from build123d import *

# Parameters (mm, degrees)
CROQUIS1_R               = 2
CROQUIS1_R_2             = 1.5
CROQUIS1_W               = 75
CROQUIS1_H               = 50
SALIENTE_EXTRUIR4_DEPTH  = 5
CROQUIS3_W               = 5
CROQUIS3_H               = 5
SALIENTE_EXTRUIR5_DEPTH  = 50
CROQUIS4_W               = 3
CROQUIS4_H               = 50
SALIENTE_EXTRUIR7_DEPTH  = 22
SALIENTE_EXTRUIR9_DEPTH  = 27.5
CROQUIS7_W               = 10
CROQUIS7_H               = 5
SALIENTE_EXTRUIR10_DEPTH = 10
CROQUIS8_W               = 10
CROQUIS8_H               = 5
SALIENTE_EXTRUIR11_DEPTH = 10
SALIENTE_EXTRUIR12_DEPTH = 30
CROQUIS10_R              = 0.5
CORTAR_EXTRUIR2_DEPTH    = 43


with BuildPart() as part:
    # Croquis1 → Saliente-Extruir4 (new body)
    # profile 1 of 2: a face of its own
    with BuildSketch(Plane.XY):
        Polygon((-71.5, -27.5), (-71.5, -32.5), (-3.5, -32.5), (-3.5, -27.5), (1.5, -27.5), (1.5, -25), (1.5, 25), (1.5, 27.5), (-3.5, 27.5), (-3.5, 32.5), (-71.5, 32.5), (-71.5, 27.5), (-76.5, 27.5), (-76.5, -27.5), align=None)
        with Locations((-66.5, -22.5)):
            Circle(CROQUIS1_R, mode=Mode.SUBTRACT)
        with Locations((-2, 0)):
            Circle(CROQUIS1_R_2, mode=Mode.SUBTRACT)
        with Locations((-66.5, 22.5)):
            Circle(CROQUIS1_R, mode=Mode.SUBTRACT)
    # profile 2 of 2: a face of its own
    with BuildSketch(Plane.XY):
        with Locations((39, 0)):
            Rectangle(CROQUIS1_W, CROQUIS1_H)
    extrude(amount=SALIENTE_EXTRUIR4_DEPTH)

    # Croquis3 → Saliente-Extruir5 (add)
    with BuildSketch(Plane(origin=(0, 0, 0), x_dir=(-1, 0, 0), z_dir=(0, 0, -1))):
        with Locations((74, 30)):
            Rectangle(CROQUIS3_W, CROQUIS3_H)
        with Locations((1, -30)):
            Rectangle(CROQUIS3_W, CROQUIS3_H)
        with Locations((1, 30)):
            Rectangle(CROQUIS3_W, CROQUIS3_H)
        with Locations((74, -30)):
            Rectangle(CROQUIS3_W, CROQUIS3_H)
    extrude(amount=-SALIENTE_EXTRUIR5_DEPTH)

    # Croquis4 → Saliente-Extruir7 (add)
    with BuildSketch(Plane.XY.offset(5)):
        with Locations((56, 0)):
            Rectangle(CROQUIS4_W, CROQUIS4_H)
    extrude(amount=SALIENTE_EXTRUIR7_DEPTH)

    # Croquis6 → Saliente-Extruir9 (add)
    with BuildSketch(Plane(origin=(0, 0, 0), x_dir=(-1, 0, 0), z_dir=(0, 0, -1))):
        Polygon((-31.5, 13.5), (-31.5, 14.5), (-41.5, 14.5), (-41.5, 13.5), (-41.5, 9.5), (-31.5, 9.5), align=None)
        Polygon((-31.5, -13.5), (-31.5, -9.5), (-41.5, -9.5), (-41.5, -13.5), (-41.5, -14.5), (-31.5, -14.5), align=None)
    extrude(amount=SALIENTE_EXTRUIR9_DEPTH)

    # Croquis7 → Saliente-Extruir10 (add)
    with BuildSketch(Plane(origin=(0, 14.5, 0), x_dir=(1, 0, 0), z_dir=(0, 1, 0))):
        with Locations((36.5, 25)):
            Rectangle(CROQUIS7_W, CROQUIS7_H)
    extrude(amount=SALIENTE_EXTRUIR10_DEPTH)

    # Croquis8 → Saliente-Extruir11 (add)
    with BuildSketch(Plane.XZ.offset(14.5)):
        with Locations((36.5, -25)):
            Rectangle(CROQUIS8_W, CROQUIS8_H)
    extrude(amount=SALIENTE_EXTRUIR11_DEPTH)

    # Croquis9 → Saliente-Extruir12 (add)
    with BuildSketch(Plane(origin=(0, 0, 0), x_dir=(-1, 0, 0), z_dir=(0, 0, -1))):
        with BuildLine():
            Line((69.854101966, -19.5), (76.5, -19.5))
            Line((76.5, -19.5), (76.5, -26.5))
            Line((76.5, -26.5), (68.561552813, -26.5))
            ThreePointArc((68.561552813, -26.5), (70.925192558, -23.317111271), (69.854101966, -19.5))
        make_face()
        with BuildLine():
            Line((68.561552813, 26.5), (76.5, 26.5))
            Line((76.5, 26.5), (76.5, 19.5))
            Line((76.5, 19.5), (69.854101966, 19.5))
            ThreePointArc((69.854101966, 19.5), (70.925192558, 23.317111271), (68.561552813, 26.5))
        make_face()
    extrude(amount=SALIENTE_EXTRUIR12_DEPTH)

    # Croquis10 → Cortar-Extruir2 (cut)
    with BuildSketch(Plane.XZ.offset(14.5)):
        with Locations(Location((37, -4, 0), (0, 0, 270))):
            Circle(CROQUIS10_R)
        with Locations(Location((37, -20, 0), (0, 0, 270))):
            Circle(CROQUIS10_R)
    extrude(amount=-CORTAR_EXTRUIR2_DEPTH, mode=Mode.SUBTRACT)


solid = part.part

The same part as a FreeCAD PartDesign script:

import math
import FreeCAD as App
import Part
import Sketcher

V = App.Vector
Q = App.Units.Quantity


def add_polygon(sketch, points):
    """Adds a closed chain of lines whose ends are joined by coincident constraints."""
    first, n = sketch.GeometryCount, len(points)
    for a, b in zip(points, points[1:] + points[:1]):
        sketch.addGeometry(Part.LineSegment(App.Vector(*a, 0), App.Vector(*b, 0)), False)
    for i in range(n):
        sketch.addConstraint(Sketcher.Constraint("Coincident", first + i, 2, first + (i + 1) % n, 1))

doc = App.newDocument("Part")
params = doc.addObject("Spreadsheet::Sheet", "Params")
for row, (alias, value) in enumerate([
    ("sketch1_diameter", "4 mm"),
    ("sketch1_diameter2", "3 mm"),
    ("sketch1_width", "68 mm"),
    ("sketch1_width2", "5 mm"),
    ("sketch1_width3", "75 mm"),
    ("pad1_length", "5 mm"),
    ("sketch2_width", "5 mm"),
    ("pad2_length", "50 mm"),
    ("sketch3_width", "3 mm"),
    ("sketch3_height", "50 mm"),
    ("pad3_length", "22 mm"),
    ("sketch4_width", "10 mm"),
    ("sketch4_height", "5 mm"),
    ("pad4_length", "27.5 mm"),
    ("sketch5_width", "10 mm"),
    ("sketch5_height", "5 mm"),
    ("pad5_length", "10 mm"),
    ("sketch6_width", "10 mm"),
    ("sketch6_height", "5 mm"),
    ("pad6_length", "10 mm"),
    ("sketch7_radius", "4.5 mm"),
    ("sketch7_height", "7 mm"),
    ("pad7_length", "30 mm"),
    ("sketch8_diameter", "1 mm"),
    ("pocket1_length", "43 mm"),
], start=1):
    params.set(f"A{row}", alias)
    params.set(f"B{row}", "=" + value)
    params.setAlias(f"B{row}", alias)

body = doc.addObject("PartDesign::Body", "Body")

# Sketch on XY plane
sketch1 = body.newObject("Sketcher::SketchObject", "Sketch")
sketch1.AttachmentSupport = (doc.getObject("XY_Plane"), [""])
sketch1.MapMode = "FlatFace"
add_polygon(sketch1, [(-71.5, -27.5), (-71.5, -32.5), (-3.5, -32.5), (-3.5, -27.5), (1.5, -27.5), (1.5, -25), (76.5, -25), (76.5, 25), (1.5, 25), (1.5, 27.5), (-3.5, 27.5), (-3.5, 32.5), (-71.5, 32.5), (-71.5, 27.5), (-76.5, 27.5), (-76.5, -27.5)])  # lines 0-15
sketch1.addGeometry(Part.Circle(V(-66.5, -22.5, 0), V(0, 0, 1), 2), False)  # 16
sketch1.addGeometry(Part.Circle(V(-2, 0, 0), V(0, 0, 1), 1.5), False)  # 17
sketch1.addGeometry(Part.Circle(V(-66.5, 22.5, 0), V(0, 0, 1), 2), False)  # 18
sketch1.addConstraint(Sketcher.Constraint("Vertical", 0))
sketch1.addConstraint(Sketcher.Constraint("Horizontal", 1))
sketch1.addConstraint(Sketcher.Constraint("Vertical", 2))
sketch1.addConstraint(Sketcher.Constraint("Horizontal", 3))
sketch1.addConstraint(Sketcher.Constraint("Vertical", 4))
sketch1.addConstraint(Sketcher.Constraint("Horizontal", 5))
sketch1.addConstraint(Sketcher.Constraint("Vertical", 6))
sketch1.addConstraint(Sketcher.Constraint("Horizontal", 7))
sketch1.addConstraint(Sketcher.Constraint("Vertical", 8))
sketch1.addConstraint(Sketcher.Constraint("Horizontal", 9))
sketch1.addConstraint(Sketcher.Constraint("Vertical", 10))
sketch1.addConstraint(Sketcher.Constraint("Horizontal", 11))
sketch1.addConstraint(Sketcher.Constraint("Vertical", 12))
sketch1.addConstraint(Sketcher.Constraint("Horizontal", 13))
sketch1.addConstraint(Sketcher.Constraint("Vertical", 14))
sketch1.addConstraint(Sketcher.Constraint("Horizontal", 15))
sketch1.addConstraint(Sketcher.Constraint("Equal", 16, 18))
sketch1.addConstraint(Sketcher.Constraint("Symmetric", 16, 3, 18, 3, -1))
sketch1.addConstraint(Sketcher.Constraint("Symmetric", 4, 2, 7, 2, -1))
sketch1.addConstraint(Sketcher.Constraint("Symmetric", 2, 2, 9, 2, -1))
sketch1.addConstraint(Sketcher.Constraint("Symmetric", 0, 2, 11, 2, -1))
sketch1.addConstraint(Sketcher.Constraint("PointOnObject", 17, 3, -1))
sketch1.addConstraint(Sketcher.Constraint("Horizontal", 9, 2, 12, 2))
sketch1.addConstraint(Sketcher.Constraint("Horizontal", 3, 2, 14, 2))
sketch1.addConstraint(Sketcher.Constraint("Equal", 9, 13))
sketch1.addConstraint(Sketcher.Constraint("Equal", 15, 0))
sketch1.addConstraint(Sketcher.Constraint("Diameter", 16, Q("4 mm")))
sketch1.addConstraint(Sketcher.Constraint("Diameter", 17, Q("3 mm")))
sketch1.addConstraint(Sketcher.Constraint("DistanceX", 1, 1, 1, 2, Q("68 mm")))
sketch1.addConstraint(Sketcher.Constraint("DistanceX", 3, 1, 3, 2, Q("5 mm")))
sketch1.addConstraint(Sketcher.Constraint("DistanceX", 5, 1, 5, 2, Q("75 mm")))
sketch1.addConstraint(Sketcher.Constraint("DistanceY", 6, 1, 6, 2, Q("50 mm")))
sketch1.addConstraint(Sketcher.Constraint("DistanceY", 14, 2, 14, 1, Q("55 mm")))
sketch1.addConstraint(Sketcher.Constraint("DistanceX", 17, 3, -1, 1, Q("2 mm")))
sketch1.addConstraint(Sketcher.Constraint("DistanceY", 16, 3, 18, 3, Q("45 mm")))
sketch1.addConstraint(Sketcher.Constraint("DistanceX", 0, 2, 16, 3, Q("5 mm")))
sketch1.addConstraint(Sketcher.Constraint("DistanceX", 16, 3, -1, 1, Q("66.5 mm")))
sketch1.setExpression("Constraints[42]", "Params.sketch1_diameter")
sketch1.setExpression("Constraints[43]", "Params.sketch1_diameter2")
sketch1.setExpression("Constraints[44]", "Params.sketch1_width")
sketch1.setExpression("Constraints[45]", "Params.sketch1_width2")
sketch1.setExpression("Constraints[46]", "Params.sketch1_width3")
pad1 = body.newObject("PartDesign::Pad", "Pad")
pad1.Profile = sketch1
pad1.setExpression("Length", "Params.pad1_length")

# Sketch on XY plane
sketch2 = body.newObject("Sketcher::SketchObject", "Sketch001")
sketch2.AttachmentSupport = (doc.getObject("XY_Plane"), [""])
sketch2.MapMode = "FlatFace"
add_polygon(sketch2, [(-72, 32), (-72, 28), (-76, 28), (-76, 32)])  # lines 0-3
add_polygon(sketch2, [(2, -28), (2, -32), (-4, -32), (-4, -28)])  # lines 4-7
add_polygon(sketch2, [(2, 32), (2, 28), (-4, 28), (-4, 32)])  # lines 8-11
add_polygon(sketch2, [(-72, -28), (-72, -32), (-76, -32), (-76, -28)])  # lines 12-15
sketch2.addConstraint(Sketcher.Constraint("Vertical", 0))
sketch2.addConstraint(Sketcher.Constraint("Horizontal", 1))
sketch2.addConstraint(Sketcher.Constraint("Vertical", 2))
sketch2.addConstraint(Sketcher.Constraint("Horizontal", 3))
sketch2.addConstraint(Sketcher.Constraint("Vertical", 4))
sketch2.addConstraint(Sketcher.Constraint("Horizontal", 5))
sketch2.addConstraint(Sketcher.Constraint("Vertical", 6))
sketch2.addConstraint(Sketcher.Constraint("Horizontal", 7))
sketch2.addConstraint(Sketcher.Constraint("Vertical", 8))
sketch2.addConstraint(Sketcher.Constraint("Horizontal", 9))
sketch2.addConstraint(Sketcher.Constraint("Vertical", 10))
sketch2.addConstraint(Sketcher.Constraint("Horizontal", 11))
sketch2.addConstraint(Sketcher.Constraint("Vertical", 12))
sketch2.addConstraint(Sketcher.Constraint("Horizontal", 13))
sketch2.addConstraint(Sketcher.Constraint("Vertical", 14))
sketch2.addConstraint(Sketcher.Constraint("Horizontal", 15))
sketch2.addConstraint(Sketcher.Constraint("Symmetric", 7, 2, 8, 2, -1))
sketch2.addConstraint(Sketcher.Constraint("Symmetric", 5, 2, 10, 2, -1))
sketch2.addConstraint(Sketcher.Constraint("Symmetric", 3, 2, 12, 2, -1))
sketch2.addConstraint(Sketcher.Constraint("Symmetric", 1, 2, 14, 2, -1))
sketch2.addConstraint(Sketcher.Constraint("Horizontal", 1, 2, 8, 2))
sketch2.addConstraint(Sketcher.Constraint("Horizontal", 3, 2, 10, 2))
sketch2.addConstraint(Sketcher.Constraint("Equal", 3, 5))
sketch2.addConstraint(Sketcher.Constraint("Equal", 15, 0))
sketch2.addConstraint(Sketcher.Constraint("DistanceX", 1, 2, 1, 1, Q("5 mm")))
sketch2.addConstraint(Sketcher.Constraint("DistanceX", 0, 2, 4, 2, Q("73 mm")))
sketch2.addConstraint(Sketcher.Constraint("DistanceY", 4, 2, 0, 2, Q("60 mm")))
sketch2.addConstraint(Sketcher.Constraint("DistanceX", 0, 2, -1, 1, Q("71.5 mm")))
sketch2.setExpression("Constraints[40]", "Params.sketch2_width")
pad2 = body.newObject("PartDesign::Pad", "Pad001")
pad2.Profile = sketch2
pad2.setExpression("Length", "Params.pad2_length")

# Sketch on XY plane
sketch3 = body.newObject("Sketcher::SketchObject", "Sketch002")
sketch3.AttachmentSupport = (doc.getObject("XY_Plane"), [""])
sketch3.MapMode = "FlatFace"
sketch3.AttachmentOffset = App.Placement(V(0, 0, 5), App.Rotation())
add_polygon(sketch3, [(54.5, 25), (54.5, -25), (57.5, -25), (57.5, 25)])  # lines 0-3
sketch3.addConstraint(Sketcher.Constraint("Vertical", 0))
sketch3.addConstraint(Sketcher.Constraint("Horizontal", 1))
sketch3.addConstraint(Sketcher.Constraint("Vertical", 2))
sketch3.addConstraint(Sketcher.Constraint("Horizontal", 3))
sketch3.addConstraint(Sketcher.Constraint("DistanceX", 1, 1, 1, 2, Q("3 mm")))
sketch3.addConstraint(Sketcher.Constraint("DistanceY", 0, 2, 0, 1, Q("50 mm")))
sketch3.addConstraint(Sketcher.Constraint("DistanceY", 0, 2, -1, 1, Q("25 mm")))
sketch3.addConstraint(Sketcher.Constraint("DistanceX", -1, 1, 0, 2, Q("54.5 mm")))
sketch3.setExpression("Constraints[8]", "Params.sketch3_width")
sketch3.setExpression("Constraints[9]", "Params.sketch3_height")
pad3 = body.newObject("PartDesign::Pad", "Pad002")
pad3.Profile = sketch3
pad3.setExpression("Length", "Params.pad3_length")

# Sketch on XY plane
sketch4 = body.newObject("Sketcher::SketchObject", "Sketch003")
sketch4.AttachmentSupport = (doc.getObject("XY_Plane"), [""])
sketch4.MapMode = "FlatFace"
add_polygon(sketch4, [(32, 14), (42, 14), (42, 10), (32, 10)])  # lines 0-3
add_polygon(sketch4, [(32, -10), (42, -10), (42, -14), (32, -14)])  # lines 4-7
sketch4.addConstraint(Sketcher.Constraint("Horizontal", 0))
sketch4.addConstraint(Sketcher.Constraint("Vertical", 1))
sketch4.addConstraint(Sketcher.Constraint("Horizontal", 2))
sketch4.addConstraint(Sketcher.Constraint("Vertical", 3))
sketch4.addConstraint(Sketcher.Constraint("Horizontal", 4))
sketch4.addConstraint(Sketcher.Constraint("Vertical", 5))
sketch4.addConstraint(Sketcher.Constraint("Horizontal", 6))
sketch4.addConstraint(Sketcher.Constraint("Vertical", 7))
sketch4.addConstraint(Sketcher.Constraint("Symmetric", 1, 2, 4, 2, -1))
sketch4.addConstraint(Sketcher.Constraint("Symmetric", 3, 2, 6, 2, -1))
sketch4.addConstraint(Sketcher.Constraint("DistanceX", 0, 1, 0, 2, Q("10 mm")))
sketch4.addConstraint(Sketcher.Constraint("DistanceY", 1, 2, 1, 1, Q("5 mm")))
sketch4.addConstraint(Sketcher.Constraint("DistanceY", 4, 2, 1, 2, Q("19 mm")))
sketch4.addConstraint(Sketcher.Constraint("DistanceX", -1, 1, 0, 2, Q("41.5 mm")))
sketch4.setExpression("Constraints[18]", "Params.sketch4_width")
sketch4.setExpression("Constraints[19]", "Params.sketch4_height")
pad4 = body.newObject("PartDesign::Pad", "Pad003")
pad4.Profile = sketch4
pad4.setExpression("Length", "Params.pad4_length")
pad4.Reversed = True

# Sketch on XZ plane
sketch5 = body.newObject("Sketcher::SketchObject", "Sketch004")
sketch5.AttachmentSupport = (doc.getObject("XZ_Plane"), [""])
sketch5.MapMode = "FlatFace"
sketch5.AttachmentOffset = App.Placement(V(0, 0, -14.5), App.Rotation())
add_polygon(sketch5, [(32, -28), (32, -22), (42, -22), (42, -28)])  # lines 0-3
sketch5.addConstraint(Sketcher.Constraint("Vertical", 0))
sketch5.addConstraint(Sketcher.Constraint("Horizontal", 1))
sketch5.addConstraint(Sketcher.Constraint("Vertical", 2))
sketch5.addConstraint(Sketcher.Constraint("Horizontal", 3))
sketch5.addConstraint(Sketcher.Constraint("DistanceX", 1, 1, 1, 2, Q("10 mm")))
sketch5.addConstraint(Sketcher.Constraint("DistanceY", 0, 1, 0, 2, Q("5 mm")))
sketch5.addConstraint(Sketcher.Constraint("DistanceX", -1, 1, 0, 2, Q("31.5 mm")))
sketch5.addConstraint(Sketcher.Constraint("DistanceY", 0, 2, -1, 1, Q("22.5 mm")))
sketch5.setExpression("Constraints[8]", "Params.sketch5_width")
sketch5.setExpression("Constraints[9]", "Params.sketch5_height")
pad5 = body.newObject("PartDesign::Pad", "Pad004")
pad5.Profile = sketch5
pad5.setExpression("Length", "Params.pad5_length")
pad5.Reversed = True

# Sketch on XZ plane
sketch6 = body.newObject("Sketcher::SketchObject", "Sketch005")
sketch6.AttachmentSupport = (doc.getObject("XZ_Plane"), [""])
sketch6.MapMode = "FlatFace"
sketch6.AttachmentOffset = App.Placement(V(0, 0, 14.5), App.Rotation())
add_polygon(sketch6, [(32, -22), (32, -28), (42, -28), (42, -22)])  # lines 0-3
sketch6.addConstraint(Sketcher.Constraint("Vertical", 0))
sketch6.addConstraint(Sketcher.Constraint("Horizontal", 1))
sketch6.addConstraint(Sketcher.Constraint("Vertical", 2))
sketch6.addConstraint(Sketcher.Constraint("Horizontal", 3))
sketch6.addConstraint(Sketcher.Constraint("DistanceX", 1, 1, 1, 2, Q("10 mm")))
sketch6.addConstraint(Sketcher.Constraint("DistanceY", 0, 2, 0, 1, Q("5 mm")))
sketch6.addConstraint(Sketcher.Constraint("DistanceX", -1, 1, 0, 2, Q("31.5 mm")))
sketch6.addConstraint(Sketcher.Constraint("DistanceY", 0, 2, -1, 1, Q("27.5 mm")))
sketch6.setExpression("Constraints[8]", "Params.sketch6_width")
sketch6.setExpression("Constraints[9]", "Params.sketch6_height")
pad6 = body.newObject("PartDesign::Pad", "Pad005")
pad6.Profile = sketch6
pad6.setExpression("Length", "Params.pad6_length")

# Sketch on XY plane
sketch7 = body.newObject("Sketcher::SketchObject", "Sketch006")
sketch7.AttachmentSupport = (doc.getObject("XY_Plane"), [""])
sketch7.MapMode = "FlatFace"
sketch7.addGeometry(Part.LineSegment(V(-76.5, -19.5, 0), V(-69.9, -19.5, 0)), False)
sketch7.addGeometry(Part.ArcOfCircle(Part.Circle(V(-66.5, -22.5, 0), V(0, 0, 1), 4.5), math.radians(138), math.radians(243)), False)
sketch7.addGeometry(Part.LineSegment(V(-68.6, -26.5, 0), V(-76.5, -26.5, 0)), False)
sketch7.addGeometry(Part.LineSegment(V(-76.5, -26.5, 0), V(-76.5, -19.5, 0)), False)
sketch7.addGeometry(Part.LineSegment(V(-76.5, 26.5, 0), V(-68.6, 26.5, 0)), False)
sketch7.addGeometry(Part.ArcOfCircle(Part.Circle(V(-66.5, 22.5, 0), V(0, 0, 1), 4.5), math.radians(117), math.radians(222)), False)
sketch7.addGeometry(Part.LineSegment(V(-69.9, 19.5, 0), V(-76.5, 19.5, 0)), False)
sketch7.addGeometry(Part.LineSegment(V(-76.5, 19.5, 0), V(-76.5, 26.5, 0)), False)
sketch7.addConstraint(Sketcher.Constraint("Coincident", 0, 2, 1, 1))
sketch7.addConstraint(Sketcher.Constraint("Coincident", 1, 2, 2, 1))
sketch7.addConstraint(Sketcher.Constraint("Coincident", 2, 2, 3, 1))
sketch7.addConstraint(Sketcher.Constraint("Coincident", 3, 2, 0, 1))
sketch7.addConstraint(Sketcher.Constraint("Coincident", 4, 2, 5, 1))
sketch7.addConstraint(Sketcher.Constraint("Coincident", 5, 2, 6, 1))
sketch7.addConstraint(Sketcher.Constraint("Coincident", 6, 2, 7, 1))
sketch7.addConstraint(Sketcher.Constraint("Coincident", 7, 2, 4, 1))
sketch7.addConstraint(Sketcher.Constraint("Horizontal", 0))
sketch7.addConstraint(Sketcher.Constraint("Horizontal", 2))
sketch7.addConstraint(Sketcher.Constraint("Vertical", 3))
sketch7.addConstraint(Sketcher.Constraint("Horizontal", 4))
sketch7.addConstraint(Sketcher.Constraint("Horizontal", 6))
sketch7.addConstraint(Sketcher.Constraint("Vertical", 7))
sketch7.addConstraint(Sketcher.Constraint("Equal", 1, 5))
sketch7.addConstraint(Sketcher.Constraint("Symmetric", 1, 3, 5, 3, -1))
sketch7.addConstraint(Sketcher.Constraint("Symmetric", 3, 2, 6, 2, -1))
sketch7.addConstraint(Sketcher.Constraint("Vertical", 1, 2, 4, 2))
sketch7.addConstraint(Sketcher.Constraint("Radius", 1, Q("4.5 mm")))
sketch7.addConstraint(Sketcher.Constraint("DistanceY", 3, 1, 3, 2, Q("7 mm")))
sketch7.addConstraint(Sketcher.Constraint("DistanceY", 1, 3, 5, 3, Q("45 mm")))
sketch7.addConstraint(Sketcher.Constraint("DistanceY", 1, 3, 0, 2, Q("3 mm")))
sketch7.addConstraint(Sketcher.Constraint("DistanceX", 2, 2, 1, 3, Q("10 mm")))
sketch7.addConstraint(Sketcher.Constraint("DistanceX", 1, 3, -1, 1, Q("66.5 mm")))
sketch7.setExpression("Constraints[18]", "Params.sketch7_radius")
sketch7.setExpression("Constraints[19]", "Params.sketch7_height")
pad7 = body.newObject("PartDesign::Pad", "Pad006")
pad7.Profile = sketch7
pad7.setExpression("Length", "Params.pad7_length")
pad7.Reversed = True

# Sketch on XZ plane
sketch8 = body.newObject("Sketcher::SketchObject", "Sketch007")
sketch8.AttachmentSupport = (doc.getObject("XZ_Plane"), [""])
sketch8.MapMode = "FlatFace"
sketch8.AttachmentOffset = App.Placement(V(0, 0, 14.5), App.Rotation())
sketch8.addGeometry(Part.Circle(V(37, -4, 0), V(0, 0, 1), 0.5), False)
sketch8.addGeometry(Part.Circle(V(37, -20, 0), V(0, 0, 1), 0.5), False)
sketch8.addConstraint(Sketcher.Constraint("Equal", 0, 1))
sketch8.addConstraint(Sketcher.Constraint("Vertical", 0, 3, 1, 3))
sketch8.addConstraint(Sketcher.Constraint("Diameter", 0, Q("1 mm")))
sketch8.addConstraint(Sketcher.Constraint("DistanceX", -1, 1, 0, 3, Q("37 mm")))
sketch8.addConstraint(Sketcher.Constraint("DistanceY", 0, 3, -1, 1, Q("4 mm")))
sketch8.addConstraint(Sketcher.Constraint("DistanceY", 1, 3, -1, 1, Q("20 mm")))
sketch8.setExpression("Constraints[2]", "Params.sketch8_diameter")
pocket1 = body.newObject("PartDesign::Pocket", "Pocket")
pocket1.Profile = sketch8
pocket1.setExpression("Length", "Params.pocket1_length")

doc.recompute()
